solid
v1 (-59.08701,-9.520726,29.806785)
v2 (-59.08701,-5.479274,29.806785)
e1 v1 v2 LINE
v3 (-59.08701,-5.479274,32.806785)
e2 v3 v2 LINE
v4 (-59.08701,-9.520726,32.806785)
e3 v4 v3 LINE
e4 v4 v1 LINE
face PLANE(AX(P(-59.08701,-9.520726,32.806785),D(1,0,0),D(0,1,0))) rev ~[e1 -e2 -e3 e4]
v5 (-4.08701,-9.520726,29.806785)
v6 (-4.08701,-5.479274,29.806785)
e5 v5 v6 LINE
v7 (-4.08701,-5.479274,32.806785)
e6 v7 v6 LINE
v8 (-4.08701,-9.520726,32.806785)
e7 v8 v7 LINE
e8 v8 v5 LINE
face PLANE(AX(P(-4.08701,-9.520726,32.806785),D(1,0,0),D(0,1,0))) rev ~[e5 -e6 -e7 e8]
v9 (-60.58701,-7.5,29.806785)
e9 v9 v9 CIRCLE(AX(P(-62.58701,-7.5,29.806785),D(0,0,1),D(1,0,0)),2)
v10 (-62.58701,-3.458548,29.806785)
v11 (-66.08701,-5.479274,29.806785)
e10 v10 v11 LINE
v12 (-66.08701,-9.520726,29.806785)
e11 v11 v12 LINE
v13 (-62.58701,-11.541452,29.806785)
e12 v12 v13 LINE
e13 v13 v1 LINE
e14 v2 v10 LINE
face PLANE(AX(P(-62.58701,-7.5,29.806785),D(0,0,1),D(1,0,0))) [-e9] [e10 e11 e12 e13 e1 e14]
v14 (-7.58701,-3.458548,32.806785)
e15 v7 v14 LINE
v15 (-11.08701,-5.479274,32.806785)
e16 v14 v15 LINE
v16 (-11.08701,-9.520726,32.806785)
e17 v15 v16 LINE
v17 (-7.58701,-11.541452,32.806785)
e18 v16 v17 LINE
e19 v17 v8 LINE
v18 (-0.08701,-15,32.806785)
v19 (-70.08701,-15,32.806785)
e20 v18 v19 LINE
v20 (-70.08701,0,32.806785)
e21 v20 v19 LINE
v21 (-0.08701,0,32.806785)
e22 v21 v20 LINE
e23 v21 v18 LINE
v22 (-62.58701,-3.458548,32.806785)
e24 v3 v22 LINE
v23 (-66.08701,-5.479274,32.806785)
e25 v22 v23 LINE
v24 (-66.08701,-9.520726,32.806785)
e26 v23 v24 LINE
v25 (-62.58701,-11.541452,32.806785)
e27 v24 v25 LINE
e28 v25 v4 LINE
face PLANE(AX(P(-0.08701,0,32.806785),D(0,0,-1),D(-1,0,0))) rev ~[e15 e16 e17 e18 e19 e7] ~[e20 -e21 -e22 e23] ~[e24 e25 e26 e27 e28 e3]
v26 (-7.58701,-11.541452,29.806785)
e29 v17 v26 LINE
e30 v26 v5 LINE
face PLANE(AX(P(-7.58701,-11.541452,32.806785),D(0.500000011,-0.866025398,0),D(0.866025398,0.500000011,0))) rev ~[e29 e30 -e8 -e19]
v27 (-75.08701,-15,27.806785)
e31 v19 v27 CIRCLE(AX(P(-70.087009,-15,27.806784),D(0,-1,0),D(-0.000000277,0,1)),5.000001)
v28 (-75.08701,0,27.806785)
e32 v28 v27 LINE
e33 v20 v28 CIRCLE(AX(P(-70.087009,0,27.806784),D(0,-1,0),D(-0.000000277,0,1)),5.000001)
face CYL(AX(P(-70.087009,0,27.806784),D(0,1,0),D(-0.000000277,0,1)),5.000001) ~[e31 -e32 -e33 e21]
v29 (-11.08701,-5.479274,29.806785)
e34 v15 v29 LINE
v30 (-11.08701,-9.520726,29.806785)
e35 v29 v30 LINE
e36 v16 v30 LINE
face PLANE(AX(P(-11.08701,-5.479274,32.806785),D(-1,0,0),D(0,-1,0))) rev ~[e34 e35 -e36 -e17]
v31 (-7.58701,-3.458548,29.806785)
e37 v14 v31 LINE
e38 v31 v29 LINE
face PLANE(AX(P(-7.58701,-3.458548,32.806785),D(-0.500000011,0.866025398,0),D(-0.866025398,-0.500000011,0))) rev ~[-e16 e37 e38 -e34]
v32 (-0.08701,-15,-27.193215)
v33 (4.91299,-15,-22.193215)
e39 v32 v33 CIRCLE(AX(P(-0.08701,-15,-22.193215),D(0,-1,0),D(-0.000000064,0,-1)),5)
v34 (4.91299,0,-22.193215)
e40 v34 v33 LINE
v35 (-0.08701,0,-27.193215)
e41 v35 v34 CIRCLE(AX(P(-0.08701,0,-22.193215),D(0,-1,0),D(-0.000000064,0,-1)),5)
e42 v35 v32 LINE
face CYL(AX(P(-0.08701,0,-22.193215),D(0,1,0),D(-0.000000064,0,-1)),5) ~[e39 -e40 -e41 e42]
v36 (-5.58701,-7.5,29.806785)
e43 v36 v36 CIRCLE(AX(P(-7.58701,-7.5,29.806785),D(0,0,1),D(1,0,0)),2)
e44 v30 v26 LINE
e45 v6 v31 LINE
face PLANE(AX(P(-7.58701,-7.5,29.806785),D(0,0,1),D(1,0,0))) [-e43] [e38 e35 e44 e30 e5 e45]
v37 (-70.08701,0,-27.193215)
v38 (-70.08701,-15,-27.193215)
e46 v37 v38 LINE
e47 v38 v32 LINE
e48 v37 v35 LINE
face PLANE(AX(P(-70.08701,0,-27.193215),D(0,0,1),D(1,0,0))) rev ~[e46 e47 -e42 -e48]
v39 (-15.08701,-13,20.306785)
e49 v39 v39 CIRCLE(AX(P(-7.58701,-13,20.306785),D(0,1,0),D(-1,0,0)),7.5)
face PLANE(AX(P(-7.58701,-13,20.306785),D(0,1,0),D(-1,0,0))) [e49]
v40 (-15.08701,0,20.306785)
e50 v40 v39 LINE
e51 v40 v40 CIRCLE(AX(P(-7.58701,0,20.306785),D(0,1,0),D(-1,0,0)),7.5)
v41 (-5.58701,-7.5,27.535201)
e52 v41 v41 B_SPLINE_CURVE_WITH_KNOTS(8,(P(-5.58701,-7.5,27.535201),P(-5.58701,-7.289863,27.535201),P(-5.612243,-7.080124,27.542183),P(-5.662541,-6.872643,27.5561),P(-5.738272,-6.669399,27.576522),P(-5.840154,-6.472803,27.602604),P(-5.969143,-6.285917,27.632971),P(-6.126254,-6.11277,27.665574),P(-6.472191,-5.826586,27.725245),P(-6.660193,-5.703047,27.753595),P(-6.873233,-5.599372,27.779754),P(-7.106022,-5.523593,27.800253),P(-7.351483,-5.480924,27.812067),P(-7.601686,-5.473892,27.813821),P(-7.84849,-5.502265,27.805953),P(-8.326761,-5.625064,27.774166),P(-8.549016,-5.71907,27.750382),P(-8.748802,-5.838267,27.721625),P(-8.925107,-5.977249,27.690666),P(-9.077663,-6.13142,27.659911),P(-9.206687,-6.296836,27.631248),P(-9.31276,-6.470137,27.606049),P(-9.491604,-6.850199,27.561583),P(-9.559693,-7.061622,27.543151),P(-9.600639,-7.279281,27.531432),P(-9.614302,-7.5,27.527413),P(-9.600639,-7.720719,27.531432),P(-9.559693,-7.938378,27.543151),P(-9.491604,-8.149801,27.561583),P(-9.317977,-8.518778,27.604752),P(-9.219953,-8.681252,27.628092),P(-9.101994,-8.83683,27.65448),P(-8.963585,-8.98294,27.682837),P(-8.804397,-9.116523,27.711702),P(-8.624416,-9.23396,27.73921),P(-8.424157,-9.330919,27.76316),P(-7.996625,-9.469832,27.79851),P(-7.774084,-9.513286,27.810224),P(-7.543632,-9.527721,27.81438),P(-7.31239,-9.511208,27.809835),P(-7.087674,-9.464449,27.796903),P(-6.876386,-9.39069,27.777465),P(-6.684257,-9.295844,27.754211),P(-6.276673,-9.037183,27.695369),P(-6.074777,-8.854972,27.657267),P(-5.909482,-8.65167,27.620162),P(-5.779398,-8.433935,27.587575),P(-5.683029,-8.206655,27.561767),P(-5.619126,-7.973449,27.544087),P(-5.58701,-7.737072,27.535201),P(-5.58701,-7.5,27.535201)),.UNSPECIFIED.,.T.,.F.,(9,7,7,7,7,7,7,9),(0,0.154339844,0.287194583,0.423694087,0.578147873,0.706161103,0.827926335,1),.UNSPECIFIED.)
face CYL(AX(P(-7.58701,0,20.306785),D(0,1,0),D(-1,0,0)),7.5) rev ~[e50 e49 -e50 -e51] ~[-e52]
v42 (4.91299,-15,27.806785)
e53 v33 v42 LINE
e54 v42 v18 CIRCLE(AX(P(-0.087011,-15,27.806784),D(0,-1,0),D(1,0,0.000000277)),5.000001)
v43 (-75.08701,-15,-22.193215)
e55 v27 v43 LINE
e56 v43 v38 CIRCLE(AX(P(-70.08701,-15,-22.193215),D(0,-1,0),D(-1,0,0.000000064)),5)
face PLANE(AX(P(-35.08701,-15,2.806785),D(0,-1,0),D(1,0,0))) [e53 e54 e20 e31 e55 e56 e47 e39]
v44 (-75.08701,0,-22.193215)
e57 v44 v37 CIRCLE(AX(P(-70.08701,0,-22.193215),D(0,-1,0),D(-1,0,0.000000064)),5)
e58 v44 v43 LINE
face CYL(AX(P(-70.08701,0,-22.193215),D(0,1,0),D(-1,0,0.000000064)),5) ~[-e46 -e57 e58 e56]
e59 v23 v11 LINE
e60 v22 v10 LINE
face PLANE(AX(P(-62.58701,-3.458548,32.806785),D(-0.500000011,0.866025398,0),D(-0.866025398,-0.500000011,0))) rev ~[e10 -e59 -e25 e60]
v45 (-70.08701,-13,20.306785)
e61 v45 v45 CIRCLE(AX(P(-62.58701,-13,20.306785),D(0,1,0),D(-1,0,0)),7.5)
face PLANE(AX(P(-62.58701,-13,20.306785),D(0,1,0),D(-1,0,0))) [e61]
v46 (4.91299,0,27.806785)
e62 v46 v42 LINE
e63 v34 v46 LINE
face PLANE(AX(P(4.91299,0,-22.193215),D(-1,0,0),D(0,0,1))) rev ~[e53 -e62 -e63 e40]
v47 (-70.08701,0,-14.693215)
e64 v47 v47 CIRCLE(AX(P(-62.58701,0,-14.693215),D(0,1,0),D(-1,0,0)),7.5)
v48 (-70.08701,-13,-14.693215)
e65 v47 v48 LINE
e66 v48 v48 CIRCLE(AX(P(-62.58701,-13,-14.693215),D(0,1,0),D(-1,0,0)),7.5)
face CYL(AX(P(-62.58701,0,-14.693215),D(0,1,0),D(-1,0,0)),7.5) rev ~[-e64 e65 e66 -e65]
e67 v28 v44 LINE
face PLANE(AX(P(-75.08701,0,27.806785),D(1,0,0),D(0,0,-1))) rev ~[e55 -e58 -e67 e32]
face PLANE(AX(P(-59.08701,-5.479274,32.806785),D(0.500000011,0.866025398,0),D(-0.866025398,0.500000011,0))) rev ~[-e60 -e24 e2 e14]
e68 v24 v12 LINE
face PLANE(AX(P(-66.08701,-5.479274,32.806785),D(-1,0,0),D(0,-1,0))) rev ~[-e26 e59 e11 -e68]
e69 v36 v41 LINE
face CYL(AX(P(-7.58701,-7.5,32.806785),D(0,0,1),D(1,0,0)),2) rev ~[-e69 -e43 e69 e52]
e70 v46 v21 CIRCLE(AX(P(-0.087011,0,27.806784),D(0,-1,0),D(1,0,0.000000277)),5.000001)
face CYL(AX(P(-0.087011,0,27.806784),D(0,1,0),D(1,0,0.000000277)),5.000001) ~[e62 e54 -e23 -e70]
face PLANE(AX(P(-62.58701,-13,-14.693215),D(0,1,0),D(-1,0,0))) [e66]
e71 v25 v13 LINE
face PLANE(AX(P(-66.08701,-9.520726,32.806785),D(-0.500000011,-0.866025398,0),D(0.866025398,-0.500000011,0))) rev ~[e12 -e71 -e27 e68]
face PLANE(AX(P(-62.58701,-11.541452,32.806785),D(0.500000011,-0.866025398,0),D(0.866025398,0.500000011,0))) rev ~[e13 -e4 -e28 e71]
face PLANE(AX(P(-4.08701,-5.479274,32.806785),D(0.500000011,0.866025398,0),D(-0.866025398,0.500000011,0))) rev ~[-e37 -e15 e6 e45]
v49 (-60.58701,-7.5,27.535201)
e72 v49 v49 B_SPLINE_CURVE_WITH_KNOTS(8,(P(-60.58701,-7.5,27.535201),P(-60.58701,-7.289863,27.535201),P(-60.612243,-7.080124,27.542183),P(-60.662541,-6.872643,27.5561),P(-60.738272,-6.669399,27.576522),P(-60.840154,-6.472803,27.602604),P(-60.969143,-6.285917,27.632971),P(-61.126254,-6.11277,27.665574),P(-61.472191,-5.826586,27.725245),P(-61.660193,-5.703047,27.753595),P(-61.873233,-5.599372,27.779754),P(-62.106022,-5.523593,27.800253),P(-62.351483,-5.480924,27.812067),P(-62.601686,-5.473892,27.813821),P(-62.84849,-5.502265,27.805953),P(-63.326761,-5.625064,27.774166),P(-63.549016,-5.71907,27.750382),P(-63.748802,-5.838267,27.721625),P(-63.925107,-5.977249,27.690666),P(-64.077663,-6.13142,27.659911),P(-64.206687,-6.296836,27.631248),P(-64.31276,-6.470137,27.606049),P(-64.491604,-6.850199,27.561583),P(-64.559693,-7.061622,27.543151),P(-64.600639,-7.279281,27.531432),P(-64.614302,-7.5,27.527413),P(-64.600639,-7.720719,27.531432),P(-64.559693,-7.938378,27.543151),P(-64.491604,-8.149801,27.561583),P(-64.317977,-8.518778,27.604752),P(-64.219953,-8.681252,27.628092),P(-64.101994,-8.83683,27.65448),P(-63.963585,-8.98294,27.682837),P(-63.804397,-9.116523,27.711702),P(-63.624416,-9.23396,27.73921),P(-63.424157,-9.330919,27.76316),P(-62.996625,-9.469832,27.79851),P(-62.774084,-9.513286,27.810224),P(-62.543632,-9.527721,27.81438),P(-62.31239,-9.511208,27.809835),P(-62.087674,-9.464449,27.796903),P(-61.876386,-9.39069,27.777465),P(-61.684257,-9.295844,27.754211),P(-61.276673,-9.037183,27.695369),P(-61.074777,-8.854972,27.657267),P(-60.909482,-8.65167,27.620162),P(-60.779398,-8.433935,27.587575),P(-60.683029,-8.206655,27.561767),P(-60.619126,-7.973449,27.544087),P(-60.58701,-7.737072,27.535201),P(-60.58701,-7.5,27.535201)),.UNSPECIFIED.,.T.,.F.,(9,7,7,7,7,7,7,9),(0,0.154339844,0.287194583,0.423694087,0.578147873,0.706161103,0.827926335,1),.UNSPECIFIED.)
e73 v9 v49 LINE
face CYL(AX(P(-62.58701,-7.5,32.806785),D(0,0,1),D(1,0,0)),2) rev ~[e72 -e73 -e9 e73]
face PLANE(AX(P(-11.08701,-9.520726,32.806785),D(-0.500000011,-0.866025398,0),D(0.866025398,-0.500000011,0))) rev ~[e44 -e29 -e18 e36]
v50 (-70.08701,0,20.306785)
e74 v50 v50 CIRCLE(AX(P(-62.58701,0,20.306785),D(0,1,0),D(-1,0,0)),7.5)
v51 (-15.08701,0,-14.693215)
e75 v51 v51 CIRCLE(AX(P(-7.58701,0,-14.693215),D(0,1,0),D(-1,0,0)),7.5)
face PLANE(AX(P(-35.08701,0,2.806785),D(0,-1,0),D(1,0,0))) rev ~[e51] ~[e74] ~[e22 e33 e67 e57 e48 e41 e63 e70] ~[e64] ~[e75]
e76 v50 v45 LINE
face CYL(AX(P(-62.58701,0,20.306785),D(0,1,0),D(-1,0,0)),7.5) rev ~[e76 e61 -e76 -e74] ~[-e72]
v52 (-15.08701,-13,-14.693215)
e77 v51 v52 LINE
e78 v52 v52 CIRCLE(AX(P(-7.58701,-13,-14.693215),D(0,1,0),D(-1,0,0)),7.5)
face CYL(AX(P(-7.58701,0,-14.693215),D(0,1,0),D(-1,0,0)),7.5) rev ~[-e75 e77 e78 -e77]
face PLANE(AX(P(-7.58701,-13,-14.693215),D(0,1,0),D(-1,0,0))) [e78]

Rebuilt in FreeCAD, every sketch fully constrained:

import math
import FreeCAD as App
import Part
import Sketcher

V = App.Vector
Q = App.Units.Quantity


def add_polygon(sketch, points):
    """Adds a closed chain of lines whose ends are joined by coincident constraints."""
    first, n = sketch.GeometryCount, len(points)
    for a, b in zip(points, points[1:] + points[:1]):
        sketch.addGeometry(Part.LineSegment(App.Vector(*a, 0), App.Vector(*b, 0)), False)
    for i in range(n):
        sketch.addConstraint(Sketcher.Constraint("Coincident", first + i, 2, first + (i + 1) % n, 1))

doc = App.newDocument("Part")
params = doc.addObject("Spreadsheet::Sheet", "Params")
for row, (alias, value) in enumerate([
    ("sketch1_radius", "5.000001 mm"),
    ("sketch1_width", "70 mm"),
    ("sketch1_height", "50 mm"),
    ("pad1_length", "15 mm"),
    ("sketch2_diameter", "15 mm"),
    ("pocket1_length", "13 mm"),
    ("sketch3_diameter", "4 mm"),
    ("pocket2_length", "6 mm"),
    ("pocket3_length", "3 mm"),
], start=1):
    params.set(f"A{row}", alias)
    params.set(f"B{row}", "=" + value)
    params.setAlias(f"B{row}", alias)

body = doc.addObject("PartDesign::Body", "Body")

sketch1 = doc.addObject("Sketcher::SketchObject", "Sketch")
body.addObject(sketch1)
sketch1.AttachmentSupport = (doc.XZ_Plane, [""])
sketch1.MapMode = "FlatFace"
sketch1.addGeometry([
    Part.LineSegment(V(-0.1, 32.8, 0), V(-70.1, 32.8, 0)),
    Part.ArcOfCircle(Part.Circle(V(-70.1, 27.8, 0), V(0, 0, 1), 5), math.radians(90), math.radians(180)),
    Part.LineSegment(V(-75.1, 27.8, 0), V(-75.1, -22.2, 0)),
    Part.ArcOfCircle(Part.Circle(V(-70.1, -22.2, 0), V(0, 0, 1), 5), math.radians(180), math.radians(270)),
    Part.LineSegment(V(-70.1, -27.2, 0), V(-0.1, -27.2, 0)),
    Part.ArcOfCircle(Part.Circle(V(-0.1, -22.2, 0), V(0, 0, 1), 5), math.radians(-90), math.radians(0)),
    Part.LineSegment(V(4.9, -22.2, 0), V(4.9, 27.8, 0)),
    Part.ArcOfCircle(Part.Circle(V(-0.1, 27.8, 0), V(0, 0, 1), 5), math.radians(0), math.radians(90)),
], False)
sketch1.addConstraint([
    Sketcher.Constraint("Tangent", 0, 2, 1, 1),
    Sketcher.Constraint("Tangent", 1, 2, 2, 1),
    Sketcher.Constraint("Tangent", 2, 2, 3, 1),
    Sketcher.Constraint("Tangent", 3, 2, 4, 1),
    Sketcher.Constraint("Tangent", 4, 2, 5, 1),
    Sketcher.Constraint("Tangent", 5, 2, 6, 1),
    Sketcher.Constraint("Tangent", 6, 2, 7, 1),
    Sketcher.Constraint("Tangent", 7, 2, 0, 1),
    Sketcher.Constraint("Horizontal", 0),
    Sketcher.Constraint("Vertical", 2),
    Sketcher.Constraint("Horizontal", 4),
    Sketcher.Constraint("Vertical", 6),
    Sketcher.Constraint("Equal", 1, 3),
    Sketcher.Constraint("Equal", 3, 5),
    Sketcher.Constraint("Equal", 5, 7),
    Sketcher.Constraint("Radius", 1, Q("5.000001 mm")),
    Sketcher.Constraint("DistanceX", 0, 2, 0, 1, Q("70 mm")),
    Sketcher.Constraint("DistanceY", 2, 2, 2, 1, Q("50 mm")),
    Sketcher.Constraint("DistanceX", 1, 3, -1, 1, Q("70.087009 mm")),
    Sketcher.Constraint("DistanceY", -1, 1, 1, 3, Q("27.806784 mm")),
])
sketch1.setExpression("Constraints[15]", "Params.sketch1_radius")
sketch1.setExpression("Constraints[16]", "Params.sketch1_width")
sketch1.setExpression("Constraints[17]", "Params.sketch1_height")
pad1 = doc.addObject("PartDesign::Pad", "Pad")
body.addObject(pad1)
pad1.Profile = sketch1
pad1.setExpression("Length", "Params.pad1_length")

sketch2 = doc.addObject("Sketcher::SketchObject", "Sketch001")
body.addObject(sketch2)
sketch2.AttachmentSupport = (doc.XZ_Plane, [""])
sketch2.MapMode = "FlatFace"
sketch2.addGeometry([
    Part.Circle(V(-8, 20, 0), V(0, 0, 1), 8),
    Part.Circle(V(-63, 20, 0), V(0, 0, 1), 8),
    Part.Circle(V(-63, -15, 0), V(0, 0, 1), 8),
    Part.Circle(V(-8, -15, 0), V(0, 0, 1), 8),
], False)
sketch2.addConstraint([
    Sketcher.Constraint("Equal", 0, 1),
    Sketcher.Constraint("Equal", 1, 2),
    Sketcher.Constraint("Equal", 2, 3),
    Sketcher.Constraint("Horizontal", 0, 3, 1, 3),
    Sketcher.Constraint("Horizontal", 2, 3, 3, 3),
    Sketcher.Constraint("Vertical", 1, 3, 2, 3),
    Sketcher.Constraint("Vertical", 0, 3, 3, 3),
    Sketcher.Constraint("Diameter", 0, Q("15 mm")),
    Sketcher.Constraint("DistanceX", 1, 3, 0, 3, Q("55 mm")),
    Sketcher.Constraint("DistanceY", 2, 3, 1, 3, Q("35 mm")),
    Sketcher.Constraint("DistanceX", 0, 3, -1, 1, Q("7.58701 mm")),
    Sketcher.Constraint("DistanceY", -1, 1, 0, 3, Q("20.306785 mm")),
])
sketch2.setExpression("Constraints[7]", "Params.sketch2_diameter")
pocket1 = doc.addObject("PartDesign::Pocket", "Pocket")
body.addObject(pocket1)
pocket1.Profile = sketch2
pocket1.setExpression("Length", "Params.pocket1_length")
pocket1.Reversed = True

sketch3 = doc.addObject("Sketcher::SketchObject", "Sketch002")
body.addObject(sketch3)
sketch3.AttachmentSupport = (doc.XY_Plane, [""])
sketch3.MapMode = "FlatFace"
sketch3.AttachmentOffset = App.Placement(V(0, 0, 32.806785), App.Rotation())
sketch3.addGeometry([
    Part.Circle(V(-62.6, -7.5, 0), V(0, 0, 1), 2),
    Part.Circle(V(-7.6, -7.5, 0), V(0, 0, 1), 2),
], False)
sketch3.addConstraint([
    Sketcher.Constraint("Equal", 0, 1),
    Sketcher.Constraint("Horizontal", 0, 3, 1, 3),
    Sketcher.Constraint("Diameter", 0, Q("4 mm")),
    Sketcher.Constraint("DistanceX", 0, 3, 1, 3, Q("55 mm")),
    Sketcher.Constraint("DistanceY", 0, 3, -1, 1, Q("7.5 mm")),
    Sketcher.Constraint("DistanceX", 0, 3, -1, 1, Q("62.58701 mm")),
])
sketch3.setExpression("Constraints[2]", "Params.sketch3_diameter")
pocket2 = doc.addObject("PartDesign::Pocket", "Pocket001")
body.addObject(pocket2)
pocket2.Profile = sketch3
pocket2.setExpression("Length", "Params.pocket2_length")

sketch4 = doc.addObject("Sketcher::SketchObject", "Sketch003")
body.addObject(sketch4)
sketch4.AttachmentSupport = (doc.XY_Plane, [""])
sketch4.MapMode = "FlatFace"
sketch4.AttachmentOffset = App.Placement(V(0, 0, 32.806785), App.Rotation())
add_polygon(sketch4, [(-59.1, -9.5), (-59.1, -5.5), (-62.6, -3.5), (-66.1, -5.5), (-66.1, -9.5), (-62.6, -11.5)])
add_polygon(sketch4, [(-4.1, -9.5), (-4.1, -5.5), (-7.6, -3.5), (-11.1, -5.5), (-11.1, -9.5), (-7.6, -11.5)])
sketch4.addConstraint([
    Sketcher.Constraint("Vertical", 0),
    Sketcher.Constraint("Vertical", 3),
    Sketcher.Constraint("Vertical", 6),
    Sketcher.Constraint("Vertical", 9),
    Sketcher.Constraint("Parallel", 1, 4),
    Sketcher.Constraint("Parallel", 2, 5),
    Sketcher.Constraint("Parallel", 4, 7),
    Sketcher.Constraint("Parallel", 5, 8),
    Sketcher.Constraint("Parallel", 7, 10),
    Sketcher.Constraint("Parallel", 8, 11),
    Sketcher.Constraint("Horizontal", 0, 2, 2, 2),
    Sketcher.Constraint("Horizontal", 3, 2, 5, 2),
    Sketcher.Constraint("Horizontal", 2, 2, 6, 2),
    Sketcher.Constraint("Horizontal", 1, 2, 7, 2),
    Sketcher.Constraint("Horizontal", 6, 2, 8, 2),
    Sketcher.Constraint("Horizontal", 5, 2, 9, 2),
    Sketcher.Constraint("Horizontal", 4, 2, 10, 2),
    Sketcher.Constraint("Vertical", 1, 2, 4, 2),
    Sketcher.Constraint("Angle", 1, Q("149.999999 deg")),
    Sketcher.Constraint("DistanceX", 2, 2, 0, 2, Q("7 mm")),
    Sketcher.Constraint("DistanceX", 0, 2, 6, 2, Q("55 mm")),
    Sketcher.Constraint("DistanceY", 0, 1, 0, 2, Q("4.041452 mm")),
    Sketcher.Constraint("DistanceX", 0, 2, -1, 1, Q("59.08701 mm")),
    Sketcher.Constraint("DistanceY", 1, 2, -1, 1, Q("3.458548 mm")),
])
pocket3 = doc.addObject("PartDesign::Pocket", "Pocket002")
body.addObject(pocket3)
pocket3.Profile = sketch4
pocket3.setExpression("Length", "Params.pocket3_length")

doc.recompute()
